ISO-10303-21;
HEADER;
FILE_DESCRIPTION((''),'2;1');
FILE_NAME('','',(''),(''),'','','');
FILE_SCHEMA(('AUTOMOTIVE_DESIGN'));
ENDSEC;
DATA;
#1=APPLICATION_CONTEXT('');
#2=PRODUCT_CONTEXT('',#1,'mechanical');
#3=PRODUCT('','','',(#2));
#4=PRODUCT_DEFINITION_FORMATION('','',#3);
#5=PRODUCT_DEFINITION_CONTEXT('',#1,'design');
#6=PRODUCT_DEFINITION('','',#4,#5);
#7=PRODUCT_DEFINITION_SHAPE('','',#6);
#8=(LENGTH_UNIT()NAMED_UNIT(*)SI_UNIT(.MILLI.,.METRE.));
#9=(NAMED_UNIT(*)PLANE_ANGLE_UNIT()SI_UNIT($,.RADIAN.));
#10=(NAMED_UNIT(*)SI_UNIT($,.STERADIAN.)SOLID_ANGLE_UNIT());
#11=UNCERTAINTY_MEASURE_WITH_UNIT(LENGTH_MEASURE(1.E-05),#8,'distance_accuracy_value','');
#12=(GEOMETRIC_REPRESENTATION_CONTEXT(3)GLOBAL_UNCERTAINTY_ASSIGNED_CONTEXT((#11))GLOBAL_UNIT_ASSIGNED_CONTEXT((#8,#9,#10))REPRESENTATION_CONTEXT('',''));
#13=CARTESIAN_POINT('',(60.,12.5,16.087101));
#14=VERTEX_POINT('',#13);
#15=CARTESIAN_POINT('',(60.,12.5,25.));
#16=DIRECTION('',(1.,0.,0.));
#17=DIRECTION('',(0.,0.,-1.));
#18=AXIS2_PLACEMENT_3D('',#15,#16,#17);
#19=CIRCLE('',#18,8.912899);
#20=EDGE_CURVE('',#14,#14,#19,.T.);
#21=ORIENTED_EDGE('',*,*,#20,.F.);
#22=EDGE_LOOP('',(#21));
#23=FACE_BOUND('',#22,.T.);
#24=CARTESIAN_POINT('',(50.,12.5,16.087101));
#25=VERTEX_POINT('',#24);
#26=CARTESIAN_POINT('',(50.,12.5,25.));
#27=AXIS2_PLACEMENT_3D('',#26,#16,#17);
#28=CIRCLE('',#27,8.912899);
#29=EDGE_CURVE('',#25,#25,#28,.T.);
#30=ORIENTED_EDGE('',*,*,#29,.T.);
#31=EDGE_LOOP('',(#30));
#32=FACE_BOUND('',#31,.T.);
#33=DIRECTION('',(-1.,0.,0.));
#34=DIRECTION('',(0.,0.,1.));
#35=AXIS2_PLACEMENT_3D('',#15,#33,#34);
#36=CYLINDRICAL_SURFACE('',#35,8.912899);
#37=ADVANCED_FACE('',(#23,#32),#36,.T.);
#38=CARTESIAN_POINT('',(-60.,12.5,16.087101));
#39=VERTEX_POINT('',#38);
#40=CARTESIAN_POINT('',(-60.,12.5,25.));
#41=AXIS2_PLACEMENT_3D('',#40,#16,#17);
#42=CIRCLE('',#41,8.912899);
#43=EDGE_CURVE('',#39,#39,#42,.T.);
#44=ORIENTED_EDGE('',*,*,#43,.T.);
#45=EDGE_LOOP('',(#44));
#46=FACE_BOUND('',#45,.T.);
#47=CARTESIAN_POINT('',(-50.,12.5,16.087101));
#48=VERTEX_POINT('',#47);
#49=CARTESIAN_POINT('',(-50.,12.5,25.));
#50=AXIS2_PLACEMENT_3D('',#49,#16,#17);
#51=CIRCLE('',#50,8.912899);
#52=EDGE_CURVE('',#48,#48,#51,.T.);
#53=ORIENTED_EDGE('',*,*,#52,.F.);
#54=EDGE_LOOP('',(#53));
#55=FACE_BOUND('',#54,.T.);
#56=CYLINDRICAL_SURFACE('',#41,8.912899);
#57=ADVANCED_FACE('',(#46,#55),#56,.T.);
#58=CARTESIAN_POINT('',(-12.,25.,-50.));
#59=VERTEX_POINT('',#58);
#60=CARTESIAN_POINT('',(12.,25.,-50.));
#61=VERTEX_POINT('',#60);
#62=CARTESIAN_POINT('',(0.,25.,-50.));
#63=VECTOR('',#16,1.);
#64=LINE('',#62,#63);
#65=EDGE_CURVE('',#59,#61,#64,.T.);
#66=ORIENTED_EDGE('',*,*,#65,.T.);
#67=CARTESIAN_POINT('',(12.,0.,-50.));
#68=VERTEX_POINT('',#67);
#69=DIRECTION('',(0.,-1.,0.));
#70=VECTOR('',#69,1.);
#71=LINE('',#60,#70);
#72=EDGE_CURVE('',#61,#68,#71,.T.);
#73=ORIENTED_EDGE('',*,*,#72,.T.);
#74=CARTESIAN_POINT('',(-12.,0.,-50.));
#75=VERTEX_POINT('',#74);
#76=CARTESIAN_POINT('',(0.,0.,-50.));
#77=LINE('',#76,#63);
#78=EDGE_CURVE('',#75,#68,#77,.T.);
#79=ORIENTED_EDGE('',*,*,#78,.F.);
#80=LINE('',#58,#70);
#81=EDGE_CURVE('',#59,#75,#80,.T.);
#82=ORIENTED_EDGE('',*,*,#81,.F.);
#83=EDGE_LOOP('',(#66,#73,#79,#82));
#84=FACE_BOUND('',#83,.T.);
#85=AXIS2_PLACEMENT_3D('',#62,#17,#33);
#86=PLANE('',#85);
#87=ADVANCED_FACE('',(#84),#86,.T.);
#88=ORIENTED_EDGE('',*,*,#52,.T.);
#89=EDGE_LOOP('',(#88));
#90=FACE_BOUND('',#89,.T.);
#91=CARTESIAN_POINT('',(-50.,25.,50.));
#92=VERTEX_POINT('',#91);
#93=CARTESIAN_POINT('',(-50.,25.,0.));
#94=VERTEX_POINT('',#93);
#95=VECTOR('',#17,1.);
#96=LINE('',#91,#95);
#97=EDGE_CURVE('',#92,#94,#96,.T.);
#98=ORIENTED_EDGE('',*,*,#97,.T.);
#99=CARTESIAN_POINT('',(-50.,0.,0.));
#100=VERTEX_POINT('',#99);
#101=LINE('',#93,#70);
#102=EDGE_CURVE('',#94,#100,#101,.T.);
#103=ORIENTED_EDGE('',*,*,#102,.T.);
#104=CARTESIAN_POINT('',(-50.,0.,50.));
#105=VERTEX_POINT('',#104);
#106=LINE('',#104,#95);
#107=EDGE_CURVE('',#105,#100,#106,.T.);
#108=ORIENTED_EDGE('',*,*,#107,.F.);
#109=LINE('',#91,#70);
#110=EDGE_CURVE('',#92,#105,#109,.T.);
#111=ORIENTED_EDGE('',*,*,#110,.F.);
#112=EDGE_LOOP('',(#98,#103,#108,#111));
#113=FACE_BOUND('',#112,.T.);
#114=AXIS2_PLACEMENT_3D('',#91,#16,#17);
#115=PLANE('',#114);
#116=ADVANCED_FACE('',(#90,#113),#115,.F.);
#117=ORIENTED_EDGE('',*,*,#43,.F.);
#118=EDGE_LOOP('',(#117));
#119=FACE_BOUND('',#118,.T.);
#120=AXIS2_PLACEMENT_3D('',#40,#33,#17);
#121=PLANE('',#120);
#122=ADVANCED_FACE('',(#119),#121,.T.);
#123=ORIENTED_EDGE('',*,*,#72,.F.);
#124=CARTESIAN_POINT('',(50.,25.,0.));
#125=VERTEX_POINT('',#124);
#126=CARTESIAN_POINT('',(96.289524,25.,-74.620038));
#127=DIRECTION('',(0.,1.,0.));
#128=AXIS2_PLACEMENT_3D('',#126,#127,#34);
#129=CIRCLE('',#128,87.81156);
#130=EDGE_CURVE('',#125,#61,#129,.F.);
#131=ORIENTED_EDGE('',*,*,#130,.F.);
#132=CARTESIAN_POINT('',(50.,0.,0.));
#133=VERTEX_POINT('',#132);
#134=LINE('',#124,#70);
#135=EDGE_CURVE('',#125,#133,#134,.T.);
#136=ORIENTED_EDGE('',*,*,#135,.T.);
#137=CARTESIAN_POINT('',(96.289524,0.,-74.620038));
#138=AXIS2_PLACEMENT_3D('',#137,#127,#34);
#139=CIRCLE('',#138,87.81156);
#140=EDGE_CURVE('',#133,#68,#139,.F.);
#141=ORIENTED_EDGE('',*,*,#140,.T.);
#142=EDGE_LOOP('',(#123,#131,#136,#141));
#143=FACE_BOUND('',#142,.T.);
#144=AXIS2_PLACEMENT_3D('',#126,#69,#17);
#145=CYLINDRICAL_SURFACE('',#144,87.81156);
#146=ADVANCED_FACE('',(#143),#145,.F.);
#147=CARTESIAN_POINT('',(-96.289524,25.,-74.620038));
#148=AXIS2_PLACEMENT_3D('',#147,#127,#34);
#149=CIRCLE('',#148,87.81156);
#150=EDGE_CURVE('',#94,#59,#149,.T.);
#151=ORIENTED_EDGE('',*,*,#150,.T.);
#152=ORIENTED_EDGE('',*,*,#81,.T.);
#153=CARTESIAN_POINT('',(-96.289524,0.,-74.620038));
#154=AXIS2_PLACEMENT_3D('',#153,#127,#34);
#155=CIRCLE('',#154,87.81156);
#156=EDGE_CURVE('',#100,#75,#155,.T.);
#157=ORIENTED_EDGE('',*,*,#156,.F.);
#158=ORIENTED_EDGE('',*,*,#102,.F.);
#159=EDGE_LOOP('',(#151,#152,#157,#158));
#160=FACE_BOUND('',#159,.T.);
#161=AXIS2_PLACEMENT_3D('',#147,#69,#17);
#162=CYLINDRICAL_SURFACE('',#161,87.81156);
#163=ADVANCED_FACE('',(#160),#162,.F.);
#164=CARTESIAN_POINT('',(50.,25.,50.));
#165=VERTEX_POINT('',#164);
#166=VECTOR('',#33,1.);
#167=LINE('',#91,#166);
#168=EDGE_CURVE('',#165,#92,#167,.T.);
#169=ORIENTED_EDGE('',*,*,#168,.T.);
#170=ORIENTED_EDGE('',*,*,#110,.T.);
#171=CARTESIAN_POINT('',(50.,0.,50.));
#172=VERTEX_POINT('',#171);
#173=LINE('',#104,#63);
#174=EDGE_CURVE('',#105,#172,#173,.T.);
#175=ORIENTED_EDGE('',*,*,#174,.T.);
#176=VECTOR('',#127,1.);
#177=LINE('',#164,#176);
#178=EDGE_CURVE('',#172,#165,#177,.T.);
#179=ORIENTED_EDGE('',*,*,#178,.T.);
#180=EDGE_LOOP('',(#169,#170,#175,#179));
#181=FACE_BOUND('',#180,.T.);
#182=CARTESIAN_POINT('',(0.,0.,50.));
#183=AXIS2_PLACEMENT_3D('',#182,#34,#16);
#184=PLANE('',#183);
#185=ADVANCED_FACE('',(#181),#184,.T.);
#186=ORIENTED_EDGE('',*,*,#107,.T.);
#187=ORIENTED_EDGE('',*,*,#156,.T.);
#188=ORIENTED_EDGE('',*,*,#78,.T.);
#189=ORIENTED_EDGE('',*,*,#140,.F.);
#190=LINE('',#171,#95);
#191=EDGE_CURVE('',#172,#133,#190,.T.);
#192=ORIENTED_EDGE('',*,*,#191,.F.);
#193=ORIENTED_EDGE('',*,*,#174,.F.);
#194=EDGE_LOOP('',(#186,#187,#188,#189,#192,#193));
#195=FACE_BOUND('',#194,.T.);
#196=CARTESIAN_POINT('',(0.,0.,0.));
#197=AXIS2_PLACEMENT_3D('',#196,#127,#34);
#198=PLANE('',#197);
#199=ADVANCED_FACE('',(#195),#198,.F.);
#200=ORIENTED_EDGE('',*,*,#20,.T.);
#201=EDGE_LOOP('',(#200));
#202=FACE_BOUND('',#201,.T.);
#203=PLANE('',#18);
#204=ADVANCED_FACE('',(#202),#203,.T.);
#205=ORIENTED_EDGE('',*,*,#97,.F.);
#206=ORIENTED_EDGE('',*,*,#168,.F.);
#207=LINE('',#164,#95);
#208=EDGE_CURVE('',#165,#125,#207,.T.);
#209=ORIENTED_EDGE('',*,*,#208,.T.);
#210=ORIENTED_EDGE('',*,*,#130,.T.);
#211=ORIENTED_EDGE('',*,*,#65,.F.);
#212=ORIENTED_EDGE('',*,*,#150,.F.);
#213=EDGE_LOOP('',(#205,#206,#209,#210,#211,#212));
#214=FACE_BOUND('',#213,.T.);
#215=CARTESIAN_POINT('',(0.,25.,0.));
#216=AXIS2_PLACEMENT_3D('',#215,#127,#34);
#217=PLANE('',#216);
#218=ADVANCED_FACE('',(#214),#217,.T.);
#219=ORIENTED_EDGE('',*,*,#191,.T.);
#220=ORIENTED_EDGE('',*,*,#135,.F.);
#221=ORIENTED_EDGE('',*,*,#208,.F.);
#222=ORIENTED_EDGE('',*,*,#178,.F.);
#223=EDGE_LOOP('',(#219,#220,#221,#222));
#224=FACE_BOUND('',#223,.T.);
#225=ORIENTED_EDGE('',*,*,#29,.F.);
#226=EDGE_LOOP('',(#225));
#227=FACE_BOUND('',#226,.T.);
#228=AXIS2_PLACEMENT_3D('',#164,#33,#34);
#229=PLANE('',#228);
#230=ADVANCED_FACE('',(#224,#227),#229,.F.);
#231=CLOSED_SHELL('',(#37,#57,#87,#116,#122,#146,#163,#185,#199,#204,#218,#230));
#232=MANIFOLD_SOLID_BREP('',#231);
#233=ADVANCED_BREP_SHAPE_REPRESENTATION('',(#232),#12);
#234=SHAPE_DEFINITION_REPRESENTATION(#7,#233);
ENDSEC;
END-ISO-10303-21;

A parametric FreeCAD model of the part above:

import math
import FreeCAD as App
import Part
import Sketcher

V = App.Vector

doc = App.newDocument("Part")
params = doc.addObject("Spreadsheet::Sheet", "Params")
for row, (alias, value) in enumerate([
    ("sketch1_width", "100 mm"),
    ("sketch1_width2", "24 mm"),
    ("pad1_length", "25 mm"),
    ("sketch2_width", "100 mm"),
    ("sketch2_height", "25 mm"),
    ("pad2_length", "50 mm"),
    ("pad3_length", "10 mm"),
], start=1):
    params.set(f"A{row}", alias)
    params.set(f"B{row}", "=" + value)
    params.setAlias(f"B{row}", alias)

body = doc.addObject("PartDesign::Body", "Body")

# Sketch on XZ plane
sketch1 = body.newObject("Sketcher::SketchObject", "Sketch")
sketch1.AttachmentSupport = (doc.getObject("XZ_Plane"), [""])
sketch1.MapMode = "FlatFace"
sketch1.addGeometry(Part.LineSegment(V(-50, 0, 0), V(50, 0, 0)), False)
sketch1.addGeometry(Part.ArcOfCircle(Part.Circle(V(96.289524, -74.620038, 0), V(0, 0, 1), 87.81156), math.radians(121.812832), math.radians(163.7175)), False)
sketch1.addGeometry(Part.LineSegment(V(12, -50, 0), V(-12, -50, 0)), False)
sketch1.addGeometry(Part.ArcOfCircle(Part.Circle(V(-96.289524, -74.620038, 0), V(0, 0, 1), 87.81156), math.radians(16.2825), math.radians(58.187168)), False)
sketch1.addConstraint(Sketcher.Constraint("Coincident", 0, 2, 1, 1))
sketch1.addConstraint(Sketcher.Constraint("Coincident", 1, 2, 2, 1))
sketch1.addConstraint(Sketcher.Constraint("Coincident", 2, 2, 3, 1))
sketch1.addConstraint(Sketcher.Constraint("Coincident", 3, 2, 0, 1))
sketch1.addConstraint(Sketcher.Constraint("Horizontal", 0))
sketch1.addConstraint(Sketcher.Constraint("Horizontal", 2))
sketch1.addConstraint(Sketcher.Constraint("Equal", 1, 3))
sketch1.addConstraint(Sketcher.Constraint("Symmetric", 0, 2, 3, 2, -1, 1))
sketch1.addConstraint(Sketcher.Constraint("Horizontal", 1, 3, 3, 3))
sketch1.addConstraint(Sketcher.Constraint("DistanceX", 0, 1, 0, 2, 100.0))
sketch1.addConstraint(Sketcher.Constraint("DistanceX", 2, 2, 2, 1, 24.0))
sketch1.addConstraint(Sketcher.Constraint("DistanceY", 1, 2, -1, 1, 50.0))
sketch1.addConstraint(Sketcher.Constraint("Radius", 1, 87.81156))
sketch1.setExpression("Constraints[9]", "Params.sketch1_width")
sketch1.setExpression("Constraints[10]", "Params.sketch1_width2")
pad1 = body.newObject("PartDesign::Pad", "Pad")
pad1.Profile = sketch1
pad1.setExpression("Length", "Params.pad1_length")
pad1.Reversed = True

# Sketch on XY plane
sketch2 = body.newObject("Sketcher::SketchObject", "Sketch001")
sketch2.AttachmentSupport = (doc.getObject("XY_Plane"), [""])
sketch2.MapMode = "FlatFace"
sketch2.addGeometry(Part.LineSegment(V(-50, 25, 0), V(-50, 0, 0)), False)
sketch2.addGeometry(Part.LineSegment(V(-50, 0, 0), V(50, 0, 0)), False)
sketch2.addGeometry(Part.LineSegment(V(50, 0, 0), V(50, 25, 0)), False)
sketch2.addGeometry(Part.LineSegment(V(50, 25, 0), V(-50, 25, 0)), False)
sketch2.addConstraint(Sketcher.Constraint("Coincident", 0, 2, 1, 1))
sketch2.addConstraint(Sketcher.Constraint("Coincident", 1, 2, 2, 1))
sketch2.addConstraint(Sketcher.Constraint("Coincident", 2, 2, 3, 1))
sketch2.addConstraint(Sketcher.Constraint("Coincident", 3, 2, 0, 1))
sketch2.addConstraint(Sketcher.Constraint("Vertical", 0))
sketch2.addConstraint(Sketcher.Constraint("Horizontal", 1))
sketch2.addConstraint(Sketcher.Constraint("Vertical", 2))
sketch2.addConstraint(Sketcher.Constraint("Horizontal", 3))
sketch2.addConstraint(Sketcher.Constraint("Symmetric", 0, 2, 1, 2, -1, 1))
sketch2.addConstraint(Sketcher.Constraint("DistanceX", 1, 1, 1, 2, 100.0))
sketch2.addConstraint(Sketcher.Constraint("DistanceY", 0, 2, 0, 1, 25.0))
sketch2.setExpression("Constraints[9]", "Params.sketch2_width")
sketch2.setExpression("Constraints[10]", "Params.sketch2_height")
pad2 = body.newObject("PartDesign::Pad", "Pad001")
pad2.Profile = sketch2
pad2.setExpression("Length", "Params.pad2_length")

# Sketch on YZ plane
sketch3 = body.newObject("Sketcher::SketchObject", "Sketch002")
sketch3.AttachmentSupport = (doc.getObject("YZ_Plane"), [""])
sketch3.MapMode = "FlatFace"
sketch3.AttachmentOffset = App.Placement(V(0, 0, 50), App.Rotation())
sketch3.addGeometry(Part.Circle(V(12.5, 25, 0), V(0, 0, 1), 8.912899), False)
sketch3.addConstraint(Sketcher.Constraint("DistanceY", -1, 1, 0, 3, 25.0))
sketch3.addConstraint(Sketcher.Constraint("Diameter", 0, 17.825799))
sketch3.addConstraint(Sketcher.Constraint("DistanceX", -1, 1, 0, 3, 12.5))
pad3 = body.newObject("PartDesign::Pad", "Pad002")
pad3.Profile = sketch3
pad3.setExpression("Length", "Params.pad3_length")
doc.recompute()

mirrored = body.newObject("PartDesign::Mirrored", "Mirrored")
mirrored.Originals = [pad3]
mirrored.MirrorPlane = (doc.getObject("YZ_Plane"), [""])
body.Tip = mirrored

doc.recompute()
